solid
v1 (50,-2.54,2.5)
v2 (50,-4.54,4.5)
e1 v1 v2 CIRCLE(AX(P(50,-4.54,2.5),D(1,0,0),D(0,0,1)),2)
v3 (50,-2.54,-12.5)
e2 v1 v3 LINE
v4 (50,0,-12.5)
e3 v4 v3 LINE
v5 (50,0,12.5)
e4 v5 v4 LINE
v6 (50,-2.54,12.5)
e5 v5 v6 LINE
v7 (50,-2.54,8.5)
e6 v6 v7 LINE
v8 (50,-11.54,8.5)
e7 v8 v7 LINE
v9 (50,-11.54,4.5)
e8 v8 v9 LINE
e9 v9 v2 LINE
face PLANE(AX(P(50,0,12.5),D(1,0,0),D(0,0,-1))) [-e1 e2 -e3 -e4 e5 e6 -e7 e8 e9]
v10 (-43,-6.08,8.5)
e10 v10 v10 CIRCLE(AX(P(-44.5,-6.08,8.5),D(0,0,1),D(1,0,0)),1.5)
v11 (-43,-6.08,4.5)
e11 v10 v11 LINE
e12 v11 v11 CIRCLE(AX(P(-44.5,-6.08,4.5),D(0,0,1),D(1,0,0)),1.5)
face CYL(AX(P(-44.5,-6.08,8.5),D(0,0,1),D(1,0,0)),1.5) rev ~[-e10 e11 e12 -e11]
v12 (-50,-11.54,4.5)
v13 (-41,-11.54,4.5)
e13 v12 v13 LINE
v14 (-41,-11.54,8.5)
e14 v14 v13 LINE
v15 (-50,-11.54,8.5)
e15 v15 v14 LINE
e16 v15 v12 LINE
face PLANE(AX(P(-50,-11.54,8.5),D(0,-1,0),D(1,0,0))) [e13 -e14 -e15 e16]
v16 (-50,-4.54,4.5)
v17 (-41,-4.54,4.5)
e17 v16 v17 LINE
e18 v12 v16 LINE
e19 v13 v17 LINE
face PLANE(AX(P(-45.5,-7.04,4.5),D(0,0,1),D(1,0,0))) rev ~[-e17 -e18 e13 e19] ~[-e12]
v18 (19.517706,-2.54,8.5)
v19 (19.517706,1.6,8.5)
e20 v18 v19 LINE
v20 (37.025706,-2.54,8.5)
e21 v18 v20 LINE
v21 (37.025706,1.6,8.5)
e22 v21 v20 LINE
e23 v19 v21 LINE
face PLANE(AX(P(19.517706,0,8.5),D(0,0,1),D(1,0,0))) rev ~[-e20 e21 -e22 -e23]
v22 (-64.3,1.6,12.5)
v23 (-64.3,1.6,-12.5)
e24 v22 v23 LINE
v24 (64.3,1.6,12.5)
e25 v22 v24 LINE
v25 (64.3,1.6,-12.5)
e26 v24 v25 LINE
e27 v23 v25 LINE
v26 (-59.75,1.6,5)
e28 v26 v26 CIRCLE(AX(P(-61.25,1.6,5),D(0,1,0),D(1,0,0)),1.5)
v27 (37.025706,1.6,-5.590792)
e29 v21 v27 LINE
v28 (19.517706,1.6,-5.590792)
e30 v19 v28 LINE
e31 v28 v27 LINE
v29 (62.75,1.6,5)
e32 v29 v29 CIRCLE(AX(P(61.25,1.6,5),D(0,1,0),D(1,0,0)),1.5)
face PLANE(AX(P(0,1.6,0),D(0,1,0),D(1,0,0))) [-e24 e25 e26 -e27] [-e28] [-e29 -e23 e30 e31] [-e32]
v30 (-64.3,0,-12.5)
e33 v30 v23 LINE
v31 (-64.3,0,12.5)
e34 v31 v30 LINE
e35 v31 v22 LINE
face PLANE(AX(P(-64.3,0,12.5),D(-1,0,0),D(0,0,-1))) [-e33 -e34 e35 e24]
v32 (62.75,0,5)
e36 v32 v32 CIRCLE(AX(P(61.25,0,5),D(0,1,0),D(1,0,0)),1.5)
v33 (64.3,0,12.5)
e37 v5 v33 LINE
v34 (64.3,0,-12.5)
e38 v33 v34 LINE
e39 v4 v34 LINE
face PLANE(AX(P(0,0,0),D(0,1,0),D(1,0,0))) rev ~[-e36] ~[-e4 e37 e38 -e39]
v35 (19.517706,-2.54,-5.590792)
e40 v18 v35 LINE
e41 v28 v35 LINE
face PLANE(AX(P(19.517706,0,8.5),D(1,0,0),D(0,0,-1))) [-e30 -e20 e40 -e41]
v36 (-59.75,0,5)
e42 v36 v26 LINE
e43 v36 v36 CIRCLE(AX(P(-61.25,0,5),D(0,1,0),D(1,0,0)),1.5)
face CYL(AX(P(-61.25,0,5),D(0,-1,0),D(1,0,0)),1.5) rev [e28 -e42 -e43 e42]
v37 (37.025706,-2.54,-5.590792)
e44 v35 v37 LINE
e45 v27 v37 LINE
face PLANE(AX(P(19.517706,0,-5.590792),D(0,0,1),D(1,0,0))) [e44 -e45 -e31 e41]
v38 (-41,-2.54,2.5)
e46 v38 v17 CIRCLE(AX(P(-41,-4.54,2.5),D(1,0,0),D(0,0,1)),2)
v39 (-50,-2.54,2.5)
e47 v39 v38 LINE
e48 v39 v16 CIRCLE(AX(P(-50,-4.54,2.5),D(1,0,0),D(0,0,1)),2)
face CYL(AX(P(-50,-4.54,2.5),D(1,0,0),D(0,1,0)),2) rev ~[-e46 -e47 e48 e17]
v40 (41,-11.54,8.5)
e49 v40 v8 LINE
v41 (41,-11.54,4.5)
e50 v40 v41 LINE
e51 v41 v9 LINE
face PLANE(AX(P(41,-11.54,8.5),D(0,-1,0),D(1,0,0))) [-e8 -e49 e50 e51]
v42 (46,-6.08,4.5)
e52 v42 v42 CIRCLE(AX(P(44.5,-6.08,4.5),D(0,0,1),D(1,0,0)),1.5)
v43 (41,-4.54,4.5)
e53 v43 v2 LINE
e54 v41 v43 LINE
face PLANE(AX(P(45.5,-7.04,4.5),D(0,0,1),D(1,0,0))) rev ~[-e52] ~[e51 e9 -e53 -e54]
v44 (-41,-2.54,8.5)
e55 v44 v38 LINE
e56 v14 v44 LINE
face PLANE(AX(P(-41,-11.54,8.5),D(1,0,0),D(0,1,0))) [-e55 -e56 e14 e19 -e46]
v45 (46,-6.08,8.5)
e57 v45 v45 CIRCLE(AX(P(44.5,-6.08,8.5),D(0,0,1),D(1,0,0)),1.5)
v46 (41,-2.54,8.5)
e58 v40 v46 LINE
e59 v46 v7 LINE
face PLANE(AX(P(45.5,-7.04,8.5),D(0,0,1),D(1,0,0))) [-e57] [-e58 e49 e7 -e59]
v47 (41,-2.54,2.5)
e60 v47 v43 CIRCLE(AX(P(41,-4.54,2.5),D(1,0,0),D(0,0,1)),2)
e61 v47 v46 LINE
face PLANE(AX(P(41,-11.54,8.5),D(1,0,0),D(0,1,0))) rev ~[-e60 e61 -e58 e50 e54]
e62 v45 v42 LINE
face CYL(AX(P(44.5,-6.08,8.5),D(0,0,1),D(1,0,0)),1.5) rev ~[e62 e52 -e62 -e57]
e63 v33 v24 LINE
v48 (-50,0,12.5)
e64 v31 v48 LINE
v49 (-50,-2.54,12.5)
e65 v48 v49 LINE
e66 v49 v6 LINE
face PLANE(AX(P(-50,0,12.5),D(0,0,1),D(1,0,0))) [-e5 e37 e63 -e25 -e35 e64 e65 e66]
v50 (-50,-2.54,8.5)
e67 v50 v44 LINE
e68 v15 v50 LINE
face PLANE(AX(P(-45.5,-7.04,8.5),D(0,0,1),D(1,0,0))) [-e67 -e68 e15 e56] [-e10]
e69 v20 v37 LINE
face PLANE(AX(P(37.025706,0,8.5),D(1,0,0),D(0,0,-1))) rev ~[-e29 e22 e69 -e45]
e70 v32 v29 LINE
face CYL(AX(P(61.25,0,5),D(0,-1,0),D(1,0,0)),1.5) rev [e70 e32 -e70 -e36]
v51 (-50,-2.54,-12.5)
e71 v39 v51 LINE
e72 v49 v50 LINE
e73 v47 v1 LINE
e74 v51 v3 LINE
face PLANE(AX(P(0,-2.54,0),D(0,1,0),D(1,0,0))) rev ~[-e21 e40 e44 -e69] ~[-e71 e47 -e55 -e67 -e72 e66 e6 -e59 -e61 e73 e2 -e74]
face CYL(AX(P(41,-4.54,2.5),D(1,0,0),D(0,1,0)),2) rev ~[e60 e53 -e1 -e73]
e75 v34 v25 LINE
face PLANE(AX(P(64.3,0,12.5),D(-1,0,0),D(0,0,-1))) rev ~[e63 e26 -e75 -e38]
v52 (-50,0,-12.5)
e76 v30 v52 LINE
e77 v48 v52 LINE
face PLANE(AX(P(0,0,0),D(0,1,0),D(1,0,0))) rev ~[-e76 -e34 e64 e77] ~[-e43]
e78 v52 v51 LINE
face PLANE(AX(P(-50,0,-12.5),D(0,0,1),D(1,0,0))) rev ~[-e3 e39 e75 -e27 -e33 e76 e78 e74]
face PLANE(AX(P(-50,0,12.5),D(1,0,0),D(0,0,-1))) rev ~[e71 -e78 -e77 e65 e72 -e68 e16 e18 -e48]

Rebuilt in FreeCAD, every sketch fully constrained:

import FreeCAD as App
import Part
import Sketcher
from FreeCAD import Vector
Q = App.Units.Quantity


def edges_at(feature, points):
    """Names of the edges that pass closest to the given points."""
    edges = feature.Shape.Edges
    near = lambda p: min(range(len(edges)), key=lambda i: edges[i].distToShape(Part.Vertex(*p))[0])
    return sorted({f"Edge{near(p) + 1}" for p in points})

doc = App.newDocument("Part")
body = doc.addObject("PartDesign::Body", "Body")

sketch1 = body.newObject("Sketcher::SketchObject", "Sketch")
sketch1.AttachmentSupport = (doc.getObject("XZ_Plane"), [""])
sketch1.MapMode = "FlatFace"
sketch1.addGeometry([
    Part.LineSegment(Vector(-64.3, -12.5, 0), Vector(-64.3, 12.5, 0)),
    Part.LineSegment(Vector(-64.3, 12.5, 0), Vector(64.3, 12.5, 0)),
    Part.LineSegment(Vector(64.3, 12.5, 0), Vector(64.3, -12.5, 0)),
    Part.LineSegment(Vector(64.3, -12.5, 0), Vector(-64.3, -12.5, 0)),
    Part.Circle(Vector(-61.2, 5, 0), Vector(0, 0, 1), 1.5),
    Part.Circle(Vector(61.2, 5, 0), Vector(0, 0, 1), 1.5),
    Part.LineSegment(Vector(37, 8.5, 0), Vector(19.5, 8.5, 0)),
    Part.LineSegment(Vector(19.5, 8.5, 0), Vector(19.5, -5.6, 0)),
    Part.LineSegment(Vector(19.5, -5.6, 0), Vector(37, -5.6, 0)),
    Part.LineSegment(Vector(37, -5.6, 0), Vector(37, 8.5, 0)),
], False)
sketch1.addConstraint([
    Sketcher.Constraint("Coincident", 0, 2, 1, 1),
    Sketcher.Constraint("Coincident", 1, 2, 2, 1),
    Sketcher.Constraint("Coincident", 2, 2, 3, 1),
    Sketcher.Constraint("Coincident", 3, 2, 0, 1),
    Sketcher.Constraint("Coincident", 6, 2, 7, 1),
    Sketcher.Constraint("Coincident", 7, 2, 8, 1),
    Sketcher.Constraint("Coincident", 8, 2, 9, 1),
    Sketcher.Constraint("Coincident", 9, 2, 6, 1),
    Sketcher.Constraint("Vertical", 0),
    Sketcher.Constraint("Horizontal", 1),
    Sketcher.Constraint("Vertical", 2),
    Sketcher.Constraint("Horizontal", 3),
    Sketcher.Constraint("Horizontal", 6),
    Sketcher.Constraint("Vertical", 7),
    Sketcher.Constraint("Horizontal", 8),
    Sketcher.Constraint("Vertical", 9),
    Sketcher.Constraint("Equal", 4, 5),
    Sketcher.Constraint("Symmetric", 0, 2, 2, 2, -1, 1),
    Sketcher.Constraint("Symmetric", 4, 3, 5, 3, -2),
    Sketcher.Constraint("Diameter", 4, Q("3 mm")),
    Sketcher.Constraint("DistanceY", 0, 1, 0, 2, Q("25 mm")),
    Sketcher.Constraint("DistanceX", 1, 1, 1, 2, Q("128.6 mm")),
    Sketcher.Constraint("DistanceY", -1, 1, 4, 3, Q("5 mm")),
    Sketcher.Constraint("DistanceY", 6, 2, 1, 2, Q("4 mm")),
    Sketcher.Constraint("DistanceX", 4, 3, 5, 3, Q("122.5 mm")),
    Sketcher.Constraint("DistanceX", 6, 2, 6, 1, Q("17.508 mm")),
    Sketcher.Constraint("DistanceY", 7, 2, 7, 1, Q("14.090792 mm")),
    Sketcher.Constraint("DistanceX", -1, 1, 6, 2, Q("19.517706 mm")),
])
pad1 = body.newObject("PartDesign::Pad", "Pad")
pad1.Profile = sketch1
pad1.Length = 1.6
pad1.Reversed = True

sketch2 = body.newObject("Sketcher::SketchObject", "Sketch001")
sketch2.AttachmentSupport = (doc.getObject("XZ_Plane"), [""])
sketch2.MapMode = "FlatFace"
sketch2.addGeometry([
    Part.LineSegment(Vector(-50, -12, 0), Vector(-50, 12, 0)),
    Part.LineSegment(Vector(-50, 12, 0), Vector(50, 12, 0)),
    Part.LineSegment(Vector(50, 12, 0), Vector(50, -12, 0)),
    Part.LineSegment(Vector(50, -12, 0), Vector(-50, -12, 0)),
    Part.LineSegment(Vector(37, 8, 0), Vector(20, 8, 0)),
    Part.LineSegment(Vector(20, 8, 0), Vector(20, -6, 0)),
    Part.LineSegment(Vector(20, -6, 0), Vector(37, -6, 0)),
    Part.LineSegment(Vector(37, -6, 0), Vector(37, 8, 0)),
], False)
sketch2.addConstraint([
    Sketcher.Constraint("Coincident", 0, 2, 1, 1),
    Sketcher.Constraint("Coincident", 1, 2, 2, 1),
    Sketcher.Constraint("Coincident", 2, 2, 3, 1),
    Sketcher.Constraint("Coincident", 3, 2, 0, 1),
    Sketcher.Constraint("Coincident", 4, 2, 5, 1),
    Sketcher.Constraint("Coincident", 5, 2, 6, 1),
    Sketcher.Constraint("Coincident", 6, 2, 7, 1),
    Sketcher.Constraint("Coincident", 7, 2, 4, 1),
    Sketcher.Constraint("Vertical", 0),
    Sketcher.Constraint("Horizontal", 1),
    Sketcher.Constraint("Vertical", 2),
    Sketcher.Constraint("Horizontal", 3),
    Sketcher.Constraint("Horizontal", 4),
    Sketcher.Constraint("Vertical", 5),
    Sketcher.Constraint("Horizontal", 6),
    Sketcher.Constraint("Vertical", 7),
    Sketcher.Constraint("Symmetric", 0, 2, 2, 2, -1, 1),
    Sketcher.Constraint("DistanceX", 1, 1, 1, 2, Q("100 mm")),
    Sketcher.Constraint("DistanceY", 0, 1, 0, 2, Q("25 mm")),
    Sketcher.Constraint("DistanceY", 4, 2, 1, 2, Q("4 mm")),
    Sketcher.Constraint("DistanceX", 4, 2, 4, 1, Q("17.508 mm")),
    Sketcher.Constraint("DistanceY", 5, 2, 5, 1, Q("14.090792 mm")),
    Sketcher.Constraint("DistanceX", -1, 1, 4, 2, Q("19.517706 mm")),
])
pad2 = body.newObject("PartDesign::Pad", "Pad001")
pad2.Profile = sketch2
pad2.Length = 2.54

sketch3 = body.newObject("Sketcher::SketchObject", "Sketch002")
sketch3.AttachmentSupport = (doc.getObject("XY_Plane"), [""])
sketch3.MapMode = "FlatFace"
sketch3.AttachmentOffset = App.Placement(Vector(0, 0, 8.5), App.Rotation())
sketch3.addGeometry([
    Part.LineSegment(Vector(-50, -2.5, 0), Vector(-50, -11.5, 0)),
    Part.LineSegment(Vector(-50, -11.5, 0), Vector(-41, -11.5, 0)),
    Part.LineSegment(Vector(-41, -11.5, 0), Vector(-41, -2.5, 0)),
    Part.LineSegment(Vector(-41, -2.5, 0), Vector(-50, -2.5, 0)),
    Part.Circle(Vector(-44.5, -6.1, 0), Vector(0, 0, 1), 1.5),
    Part.LineSegment(Vector(41, -2.5, 0), Vector(41, -11.5, 0)),
    Part.LineSegment(Vector(41, -11.5, 0), Vector(50, -11.5, 0)),
    Part.LineSegment(Vector(50, -11.5, 0), Vector(50, -2.5, 0)),
    Part.LineSegment(Vector(50, -2.5, 0), Vector(41, -2.5, 0)),
    Part.Circle(Vector(44.5, -6.1, 0), Vector(0, 0, 1), 1.5),
], False)
sketch3.addConstraint([
    Sketcher.Constraint("Coincident", 0, 2, 1, 1),
    Sketcher.Constraint("Coincident", 1, 2, 2, 1),
    Sketcher.Constraint("Coincident", 2, 2, 3, 1),
    Sketcher.Constraint("Coincident", 3, 2, 0, 1),
    Sketcher.Constraint("Coincident", 5, 2, 6, 1),
    Sketcher.Constraint("Coincident", 6, 2, 7, 1),
    Sketcher.Constraint("Coincident", 7, 2, 8, 1),
    Sketcher.Constraint("Coincident", 8, 2, 5, 1),
    Sketcher.Constraint("Vertical", 0),
    Sketcher.Constraint("Horizontal", 1),
    Sketcher.Constraint("Vertical", 2),
    Sketcher.Constraint("Horizontal", 3),
    Sketcher.Constraint("Vertical", 5),
    Sketcher.Constraint("Horizontal", 6),
    Sketcher.Constraint("Vertical", 7),
    Sketcher.Constraint("Horizontal", 8),
    Sketcher.Constraint("Equal", 4, 9),
    Sketcher.Constraint("Symmetric", 4, 3, 9, 3, -2),
    Sketcher.Constraint("Symmetric", 1, 2, 5, 2, -2),
    Sketcher.Constraint("Symmetric", 3, 2, 7, 2, -2),
    Sketcher.Constraint("Equal", 8, 0),
    Sketcher.Constraint("Diameter", 4, Q("3 mm")),
    Sketcher.Constraint("DistanceX", 1, 1, 1, 2, Q("9 mm")),
    Sketcher.Constraint("DistanceX", 0, 2, -1, 1, Q("50 mm")),
    Sketcher.Constraint("DistanceX", 4, 3, 9, 3, Q("89 mm")),
    Sketcher.Constraint("DistanceY", 4, 3, -1, 1, Q("6.08 mm")),
    Sketcher.Constraint("DistanceY", 0, 2, -1, 1, Q("11.54 mm")),
])
pad3 = body.newObject("PartDesign::Pad", "Pad002")
pad3.Profile = sketch3
pad3.Length = 4
pad3.Reversed = True
doc.recompute()

fillet = body.newObject("PartDesign::Fillet", "Fillet")
fillet.Base = (pad3, edges_at(pad3, [(-45.5, -2.54, 4.5), (45.5, -2.54, 4.5)]))
fillet.Radius = 2

doc.recompute()
